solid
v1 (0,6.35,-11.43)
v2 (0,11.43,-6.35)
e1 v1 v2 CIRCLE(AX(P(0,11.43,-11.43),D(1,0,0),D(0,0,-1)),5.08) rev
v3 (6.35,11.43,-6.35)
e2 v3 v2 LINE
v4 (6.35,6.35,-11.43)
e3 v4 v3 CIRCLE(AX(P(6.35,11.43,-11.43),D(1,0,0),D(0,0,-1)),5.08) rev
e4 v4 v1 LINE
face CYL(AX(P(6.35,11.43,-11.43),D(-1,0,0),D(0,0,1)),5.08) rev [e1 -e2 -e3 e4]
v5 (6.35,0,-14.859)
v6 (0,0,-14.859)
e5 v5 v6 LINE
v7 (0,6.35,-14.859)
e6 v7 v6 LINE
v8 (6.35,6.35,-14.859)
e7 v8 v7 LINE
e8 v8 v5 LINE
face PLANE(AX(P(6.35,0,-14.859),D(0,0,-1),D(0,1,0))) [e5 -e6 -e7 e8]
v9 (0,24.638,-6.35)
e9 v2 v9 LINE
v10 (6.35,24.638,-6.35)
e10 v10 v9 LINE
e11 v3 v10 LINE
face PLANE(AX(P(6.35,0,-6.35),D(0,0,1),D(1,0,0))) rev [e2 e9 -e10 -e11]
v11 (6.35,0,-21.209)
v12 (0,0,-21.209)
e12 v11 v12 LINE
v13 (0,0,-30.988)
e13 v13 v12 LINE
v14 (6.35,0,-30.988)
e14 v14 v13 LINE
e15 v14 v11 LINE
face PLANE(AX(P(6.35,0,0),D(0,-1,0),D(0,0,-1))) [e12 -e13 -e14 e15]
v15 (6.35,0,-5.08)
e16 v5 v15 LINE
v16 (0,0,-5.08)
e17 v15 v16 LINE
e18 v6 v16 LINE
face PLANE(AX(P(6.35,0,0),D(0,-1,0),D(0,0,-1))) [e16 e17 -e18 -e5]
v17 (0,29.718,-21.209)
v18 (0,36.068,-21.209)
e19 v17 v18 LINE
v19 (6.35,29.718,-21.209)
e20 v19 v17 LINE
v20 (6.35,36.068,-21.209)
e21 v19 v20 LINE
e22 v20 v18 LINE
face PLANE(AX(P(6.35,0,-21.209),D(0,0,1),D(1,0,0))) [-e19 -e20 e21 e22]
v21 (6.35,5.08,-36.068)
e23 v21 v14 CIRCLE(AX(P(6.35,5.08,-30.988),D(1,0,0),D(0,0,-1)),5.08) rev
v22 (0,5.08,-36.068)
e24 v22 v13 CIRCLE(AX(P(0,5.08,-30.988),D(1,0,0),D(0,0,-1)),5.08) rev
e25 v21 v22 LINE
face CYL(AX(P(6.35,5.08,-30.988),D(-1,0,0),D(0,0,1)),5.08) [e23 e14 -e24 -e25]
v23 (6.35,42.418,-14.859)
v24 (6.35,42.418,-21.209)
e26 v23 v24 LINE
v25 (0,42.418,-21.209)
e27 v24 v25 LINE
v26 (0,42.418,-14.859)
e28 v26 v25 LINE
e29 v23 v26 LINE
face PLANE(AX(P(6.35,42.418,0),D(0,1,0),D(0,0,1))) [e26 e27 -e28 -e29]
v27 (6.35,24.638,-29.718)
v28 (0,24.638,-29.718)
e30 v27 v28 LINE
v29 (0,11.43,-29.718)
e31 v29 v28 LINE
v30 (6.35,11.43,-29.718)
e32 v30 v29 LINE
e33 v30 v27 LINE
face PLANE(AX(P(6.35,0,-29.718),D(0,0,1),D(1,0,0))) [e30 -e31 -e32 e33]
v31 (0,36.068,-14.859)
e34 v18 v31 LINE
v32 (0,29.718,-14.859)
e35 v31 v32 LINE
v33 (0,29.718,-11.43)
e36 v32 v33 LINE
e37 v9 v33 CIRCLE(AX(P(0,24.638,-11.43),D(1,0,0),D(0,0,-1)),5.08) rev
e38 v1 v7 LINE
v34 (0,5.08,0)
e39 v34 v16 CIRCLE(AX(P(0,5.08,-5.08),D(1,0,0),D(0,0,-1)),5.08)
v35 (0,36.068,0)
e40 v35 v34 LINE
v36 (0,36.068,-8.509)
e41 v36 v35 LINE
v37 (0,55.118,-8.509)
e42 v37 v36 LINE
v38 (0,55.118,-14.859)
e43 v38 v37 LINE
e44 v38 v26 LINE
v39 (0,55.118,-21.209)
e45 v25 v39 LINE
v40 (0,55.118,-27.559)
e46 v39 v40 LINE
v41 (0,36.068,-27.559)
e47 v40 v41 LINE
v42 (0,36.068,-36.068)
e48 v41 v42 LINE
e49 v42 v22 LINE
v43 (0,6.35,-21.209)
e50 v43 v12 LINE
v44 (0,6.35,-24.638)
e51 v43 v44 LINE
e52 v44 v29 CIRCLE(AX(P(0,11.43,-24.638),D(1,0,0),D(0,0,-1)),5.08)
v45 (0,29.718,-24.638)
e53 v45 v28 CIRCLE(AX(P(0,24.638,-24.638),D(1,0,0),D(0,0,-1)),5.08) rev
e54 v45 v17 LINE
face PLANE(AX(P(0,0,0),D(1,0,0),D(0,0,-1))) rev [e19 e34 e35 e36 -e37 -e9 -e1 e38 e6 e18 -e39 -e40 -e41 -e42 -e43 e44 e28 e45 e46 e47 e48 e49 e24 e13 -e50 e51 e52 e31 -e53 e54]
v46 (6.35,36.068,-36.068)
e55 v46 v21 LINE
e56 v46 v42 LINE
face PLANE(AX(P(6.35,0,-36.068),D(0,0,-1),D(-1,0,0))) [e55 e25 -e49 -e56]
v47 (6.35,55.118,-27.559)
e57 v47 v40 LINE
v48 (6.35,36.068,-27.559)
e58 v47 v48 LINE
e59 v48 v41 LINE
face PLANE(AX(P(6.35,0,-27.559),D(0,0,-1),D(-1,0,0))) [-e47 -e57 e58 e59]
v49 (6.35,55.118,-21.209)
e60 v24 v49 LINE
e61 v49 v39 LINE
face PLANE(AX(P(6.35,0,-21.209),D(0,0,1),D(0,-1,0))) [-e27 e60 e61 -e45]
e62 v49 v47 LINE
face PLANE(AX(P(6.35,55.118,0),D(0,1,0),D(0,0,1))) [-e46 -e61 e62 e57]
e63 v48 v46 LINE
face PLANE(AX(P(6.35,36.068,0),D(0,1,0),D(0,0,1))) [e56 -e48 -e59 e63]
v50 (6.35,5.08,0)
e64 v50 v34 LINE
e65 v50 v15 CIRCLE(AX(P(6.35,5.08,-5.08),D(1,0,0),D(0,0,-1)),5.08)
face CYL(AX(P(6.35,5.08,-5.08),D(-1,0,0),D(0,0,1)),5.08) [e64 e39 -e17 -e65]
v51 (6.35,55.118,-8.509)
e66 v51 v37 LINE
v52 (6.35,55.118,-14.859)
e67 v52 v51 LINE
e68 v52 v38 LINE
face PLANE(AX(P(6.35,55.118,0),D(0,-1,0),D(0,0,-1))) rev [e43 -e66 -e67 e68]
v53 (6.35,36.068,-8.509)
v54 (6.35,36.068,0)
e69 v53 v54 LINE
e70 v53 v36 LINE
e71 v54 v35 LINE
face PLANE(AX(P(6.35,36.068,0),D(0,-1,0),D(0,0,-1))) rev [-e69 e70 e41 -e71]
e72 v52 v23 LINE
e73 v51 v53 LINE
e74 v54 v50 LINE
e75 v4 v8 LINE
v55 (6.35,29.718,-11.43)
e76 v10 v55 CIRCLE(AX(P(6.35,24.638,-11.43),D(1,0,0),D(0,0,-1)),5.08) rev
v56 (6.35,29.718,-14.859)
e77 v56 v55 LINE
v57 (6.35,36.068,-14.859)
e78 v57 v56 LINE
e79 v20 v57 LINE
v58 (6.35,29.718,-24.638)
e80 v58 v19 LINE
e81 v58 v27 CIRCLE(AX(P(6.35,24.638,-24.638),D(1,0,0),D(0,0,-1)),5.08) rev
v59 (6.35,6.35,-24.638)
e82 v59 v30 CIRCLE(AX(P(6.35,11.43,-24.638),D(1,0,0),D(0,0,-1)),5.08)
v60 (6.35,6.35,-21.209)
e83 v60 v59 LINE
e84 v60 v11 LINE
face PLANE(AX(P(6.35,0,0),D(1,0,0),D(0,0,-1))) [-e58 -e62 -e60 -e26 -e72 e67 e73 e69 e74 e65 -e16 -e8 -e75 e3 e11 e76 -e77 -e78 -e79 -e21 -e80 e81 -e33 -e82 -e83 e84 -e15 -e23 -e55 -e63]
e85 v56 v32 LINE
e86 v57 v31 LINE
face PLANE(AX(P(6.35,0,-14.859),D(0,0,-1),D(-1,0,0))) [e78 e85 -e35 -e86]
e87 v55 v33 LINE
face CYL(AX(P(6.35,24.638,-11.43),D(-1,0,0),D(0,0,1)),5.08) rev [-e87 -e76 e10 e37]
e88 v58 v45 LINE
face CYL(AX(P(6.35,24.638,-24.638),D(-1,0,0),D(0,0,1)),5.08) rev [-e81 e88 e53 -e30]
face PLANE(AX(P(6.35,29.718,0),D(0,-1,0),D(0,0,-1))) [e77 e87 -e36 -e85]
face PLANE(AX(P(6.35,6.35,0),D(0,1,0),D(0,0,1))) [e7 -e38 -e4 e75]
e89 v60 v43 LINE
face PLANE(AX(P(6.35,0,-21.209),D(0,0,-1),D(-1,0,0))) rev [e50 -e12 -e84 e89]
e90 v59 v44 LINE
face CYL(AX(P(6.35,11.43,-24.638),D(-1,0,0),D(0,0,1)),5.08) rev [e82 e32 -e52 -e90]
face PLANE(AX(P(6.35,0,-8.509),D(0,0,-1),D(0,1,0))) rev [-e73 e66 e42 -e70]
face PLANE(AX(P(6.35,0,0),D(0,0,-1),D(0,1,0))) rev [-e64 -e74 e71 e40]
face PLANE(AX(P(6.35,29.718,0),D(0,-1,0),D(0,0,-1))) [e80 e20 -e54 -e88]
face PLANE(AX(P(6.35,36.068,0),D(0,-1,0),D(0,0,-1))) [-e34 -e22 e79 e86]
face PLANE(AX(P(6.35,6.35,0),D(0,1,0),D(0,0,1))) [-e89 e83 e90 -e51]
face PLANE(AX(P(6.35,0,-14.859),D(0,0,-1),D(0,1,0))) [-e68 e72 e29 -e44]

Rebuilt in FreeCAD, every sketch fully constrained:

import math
import FreeCAD as App
import Part
import Sketcher
Q = App.Units.Quantity

doc = App.newDocument("Part")
body = doc.addObject("PartDesign::Body", "Body")

sketch1 = body.newObject("Sketcher::SketchObject", "Sketch")
sketch1.AttachmentSupport = (doc.getObject("YZ_Plane"), [""])
sketch1.MapMode = "FlatFace"
sketch1.addGeometry(Part.LineSegment(App.Vector(42.4, -14.9, 0), App.Vector(55.1, -14.9, 0)), False)
sketch1.addGeometry(Part.LineSegment(App.Vector(55.1, -14.9, 0), App.Vector(55.1, -8.5, 0)), False)
sketch1.addGeometry(Part.LineSegment(App.Vector(55.1, -8.5, 0), App.Vector(36.1, -8.5, 0)), False)
sketch1.addGeometry(Part.LineSegment(App.Vector(36.1, -8.5, 0), App.Vector(36.1, 0, 0)), False)
sketch1.addGeometry(Part.LineSegment(App.Vector(36.1, 0, 0), App.Vector(5.1, 0, 0)), False)
sketch1.addGeometry(Part.ArcOfCircle(Part.Circle(App.Vector(5.1, -5.1, 0), App.Vector(0, 0, 1), 5.1), math.radians(90), math.radians(180)), False)
sketch1.addGeometry(Part.LineSegment(App.Vector(0, -5.1, 0), App.Vector(0, -14.9, 0)), False)
sketch1.addGeometry(Part.LineSegment(App.Vector(0, -14.9, 0), App.Vector(6.3, -14.9, 0)), False)
sketch1.addGeometry(Part.LineSegment(App.Vector(6.3, -14.9, 0), App.Vector(6.3, -11.4, 0)), False)
sketch1.addGeometry(Part.ArcOfCircle(Part.Circle(App.Vector(11.4, -11.4, 0), App.Vector(0, 0, 1), 5.1), math.radians(90), math.radians(180)), False)
sketch1.addGeometry(Part.LineSegment(App.Vector(11.4, -6.3, 0), App.Vector(24.6, -6.3, 0)), False)
sketch1.addGeometry(Part.ArcOfCircle(Part.Circle(App.Vector(24.6, -11.4, 0), App.Vector(0, 0, 1), 5.1), math.radians(0), math.radians(90)), False)
sketch1.addGeometry(Part.LineSegment(App.Vector(29.7, -11.4, 0), App.Vector(29.7, -14.9, 0)), False)
sketch1.addGeometry(Part.LineSegment(App.Vector(29.7, -14.9, 0), App.Vector(36.1, -14.9, 0)), False)
sketch1.addGeometry(Part.LineSegment(App.Vector(36.1, -14.9, 0), App.Vector(36.1, -21.2, 0)), False)
sketch1.addGeometry(Part.LineSegment(App.Vector(36.1, -21.2, 0), App.Vector(29.7, -21.2, 0)), False)
sketch1.addGeometry(Part.LineSegment(App.Vector(29.7, -21.2, 0), App.Vector(29.7, -24.6, 0)), False)
sketch1.addGeometry(Part.ArcOfCircle(Part.Circle(App.Vector(24.6, -24.6, 0), App.Vector(0, 0, 1), 5.1), math.radians(-90), math.radians(0)), False)
sketch1.addGeometry(Part.LineSegment(App.Vector(24.6, -29.7, 0), App.Vector(11.4, -29.7, 0)), False)
sketch1.addGeometry(Part.ArcOfCircle(Part.Circle(App.Vector(11.4, -24.6, 0), App.Vector(0, 0, 1), 5.1), math.radians(-180), math.radians(-90)), False)
sketch1.addGeometry(Part.LineSegment(App.Vector(6.3, -24.6, 0), App.Vector(6.3, -21.2, 0)), False)
sketch1.addGeometry(Part.LineSegment(App.Vector(6.3, -21.2, 0), App.Vector(0, -21.2, 0)), False)
sketch1.addGeometry(Part.LineSegment(App.Vector(0, -21.2, 0), App.Vector(0, -31, 0)), False)
sketch1.addGeometry(Part.ArcOfCircle(Part.Circle(App.Vector(5.1, -31, 0), App.Vector(0, 0, 1), 5.1), math.radians(-180), math.radians(-90)), False)
sketch1.addGeometry(Part.LineSegment(App.Vector(5.1, -36.1, 0), App.Vector(36.1, -36.1, 0)), False)
sketch1.addGeometry(Part.LineSegment(App.Vector(36.1, -36.1, 0), App.Vector(36.1, -27.6, 0)), False)
sketch1.addGeometry(Part.LineSegment(App.Vector(36.1, -27.6, 0), App.Vector(55.1, -27.6, 0)), False)
sketch1.addGeometry(Part.LineSegment(App.Vector(55.1, -27.6, 0), App.Vector(55.1, -21.2, 0)), False)
sketch1.addGeometry(Part.LineSegment(App.Vector(55.1, -21.2, 0), App.Vector(42.4, -21.2, 0)), False)
sketch1.addGeometry(Part.LineSegment(App.Vector(42.4, -21.2, 0), App.Vector(42.4, -14.9, 0)), False)
sketch1.addConstraint(Sketcher.Constraint("Coincident", 0, 2, 1, 1))
sketch1.addConstraint(Sketcher.Constraint("Coincident", 1, 2, 2, 1))
sketch1.addConstraint(Sketcher.Constraint("Coincident", 2, 2, 3, 1))
sketch1.addConstraint(Sketcher.Constraint("Coincident", 3, 2, 4, 1))
sketch1.addConstraint(Sketcher.Constraint("Tangent", 4, 2, 5, 1))
sketch1.addConstraint(Sketcher.Constraint("Tangent", 5, 2, 6, 1))
sketch1.addConstraint(Sketcher.Constraint("Coincident", 6, 2, 7, 1))
sketch1.addConstraint(Sketcher.Constraint("Coincident", 7, 2, 8, 1))
sketch1.addConstraint(Sketcher.Constraint("Tangent", 8, 2, 9, 2))
sketch1.addConstraint(Sketcher.Constraint("Tangent", 9, 1, 10, 1))
sketch1.addConstraint(Sketcher.Constraint("Tangent", 10, 2, 11, 2))
sketch1.addConstraint(Sketcher.Constraint("Tangent", 11, 1, 12, 1))
sketch1.addConstraint(Sketcher.Constraint("Coincident", 12, 2, 13, 1))
sketch1.addConstraint(Sketcher.Constraint("Coincident", 13, 2, 14, 1))
sketch1.addConstraint(Sketcher.Constraint("Coincident", 14, 2, 15, 1))
sketch1.addConstraint(Sketcher.Constraint("Coincident", 15, 2, 16, 1))
sketch1.addConstraint(Sketcher.Constraint("Tangent", 16, 2, 17, 2))
sketch1.addConstraint(Sketcher.Constraint("Tangent", 17, 1, 18, 1))
sketch1.addConstraint(Sketcher.Constraint("Tangent", 18, 2, 19, 2))
sketch1.addConstraint(Sketcher.Constraint("Tangent", 19, 1, 20, 1))
sketch1.addConstraint(Sketcher.Constraint("Coincident", 20, 2, 21, 1))
sketch1.addConstraint(Sketcher.Constraint("Coincident", 21, 2, 22, 1))
sketch1.addConstraint(Sketcher.Constraint("Tangent", 22, 2, 23, 1))
sketch1.addConstraint(Sketcher.Constraint("Tangent", 23, 2, 24, 1))
sketch1.addConstraint(Sketcher.Constraint("Coincident", 24, 2, 25, 1))
sketch1.addConstraint(Sketcher.Constraint("Coincident", 25, 2, 26, 1))
sketch1.addConstraint(Sketcher.Constraint("Coincident", 26, 2, 27, 1))
sketch1.addConstraint(Sketcher.Constraint("Coincident", 27, 2, 28, 1))
sketch1.addConstraint(Sketcher.Constraint("Coincident", 28, 2, 29, 1))
sketch1.addConstraint(Sketcher.Constraint("Coincident", 29, 2, 0, 1))
sketch1.addConstraint(Sketcher.Constraint("Horizontal", 0))
sketch1.addConstraint(Sketcher.Constraint("Vertical", 1))
sketch1.addConstraint(Sketcher.Constraint("Horizontal", 2))
sketch1.addConstraint(Sketcher.Constraint("Vertical", 3))
sketch1.addConstraint(Sketcher.Constraint("Horizontal", 4))
sketch1.addConstraint(Sketcher.Constraint("Vertical", 6))
sketch1.addConstraint(Sketcher.Constraint("Horizontal", 7))
sketch1.addConstraint(Sketcher.Constraint("Vertical", 8))
sketch1.addConstraint(Sketcher.Constraint("Horizontal", 10))
sketch1.addConstraint(Sketcher.Constraint("Vertical", 12))
sketch1.addConstraint(Sketcher.Constraint("Horizontal", 13))
sketch1.addConstraint(Sketcher.Constraint("Vertical", 14))
sketch1.addConstraint(Sketcher.Constraint("Horizontal", 15))
sketch1.addConstraint(Sketcher.Constraint("Vertical", 16))
sketch1.addConstraint(Sketcher.Constraint("Horizontal", 18))
sketch1.addConstraint(Sketcher.Constraint("Vertical", 20))
sketch1.addConstraint(Sketcher.Constraint("Horizontal", 21))
sketch1.addConstraint(Sketcher.Constraint("Vertical", 22))
sketch1.addConstraint(Sketcher.Constraint("Horizontal", 24))
sketch1.addConstraint(Sketcher.Constraint("Vertical", 25))
sketch1.addConstraint(Sketcher.Constraint("Horizontal", 26))
sketch1.addConstraint(Sketcher.Constraint("Vertical", 27))
sketch1.addConstraint(Sketcher.Constraint("Horizontal", 28))
sketch1.addConstraint(Sketcher.Constraint("Vertical", 29))
sketch1.addConstraint(Sketcher.Constraint("Equal", 5, 9))
sketch1.addConstraint(Sketcher.Constraint("Equal", 9, 11))
sketch1.addConstraint(Sketcher.Constraint("Equal", 11, 17))
sketch1.addConstraint(Sketcher.Constraint("Equal", 17, 19))
sketch1.addConstraint(Sketcher.Constraint("Equal", 19, 23))
sketch1.addConstraint(Sketcher.Constraint("PointOnObject", 3, 2, -1))
sketch1.addConstraint(Sketcher.Constraint("PointOnObject", 5, 2, -2))
sketch1.addConstraint(Sketcher.Constraint("PointOnObject", 21, 2, -2))
sketch1.addConstraint(Sketcher.Constraint("Horizontal", 0, 2, 6, 2))
sketch1.addConstraint(Sketcher.Constraint("Horizontal", 7, 2, 12, 2))
sketch1.addConstraint(Sketcher.Constraint("Horizontal", 15, 2, 20, 2))
sketch1.addConstraint(Sketcher.Constraint("Horizontal", 21, 2, 27, 2))
sketch1.addConstraint(Sketcher.Constraint("Vertical", 11, 3, 17, 3))
sketch1.addConstraint(Sketcher.Constraint("Vertical", 9, 3, 19, 3))
sketch1.addConstraint(Sketcher.Constraint("Vertical", 3, 2, 13, 2))
sketch1.addConstraint(Sketcher.Constraint("Vertical", 14, 2, 24, 2))
sketch1.addConstraint(Sketcher.Constraint("Vertical", 1, 2, 26, 2))
sketch1.addConstraint(Sketcher.Constraint("Equal", 7, 13))
sketch1.addConstraint(Sketcher.Constraint("Equal", 21, 1))
sketch1.addConstraint(Sketcher.Constraint("Equal", 1, 14))
sketch1.addConstraint(Sketcher.Constraint("Equal", 12, 16))
sketch1.addConstraint(Sketcher.Constraint("Equal", 6, 22))
sketch1.addConstraint(Sketcher.Constraint("Equal", 3, 25))
sketch1.addConstraint(Sketcher.Constraint("Radius", 5, Q("0.2 in")))
sketch1.addConstraint(Sketcher.Constraint("DistanceX", 0, 1, 0, 2, Q("0.5 in")))
sketch1.addConstraint(Sketcher.Constraint("DistanceX", 2, 2, 2, 1, Q("0.75 in")))
sketch1.addConstraint(Sketcher.Constraint("DistanceX", 4, 2, 4, 1, Q("1.22 in")))
sketch1.addConstraint(Sketcher.Constraint("DistanceX", 7, 1, 7, 2, Q("0.25 in")))
sketch1.addConstraint(Sketcher.Constraint("DistanceY", 3, 1, 3, 2, Q("0.335 in")))
sketch1.addConstraint(Sketcher.Constraint("DistanceY", 8, 1, 8, 2, Q("0.135 in")))
pad1 = body.newObject("PartDesign::Pad", "Pad")
pad1.Profile = sketch1
pad1.Length = Q("0.25 in")

doc.recompute()
